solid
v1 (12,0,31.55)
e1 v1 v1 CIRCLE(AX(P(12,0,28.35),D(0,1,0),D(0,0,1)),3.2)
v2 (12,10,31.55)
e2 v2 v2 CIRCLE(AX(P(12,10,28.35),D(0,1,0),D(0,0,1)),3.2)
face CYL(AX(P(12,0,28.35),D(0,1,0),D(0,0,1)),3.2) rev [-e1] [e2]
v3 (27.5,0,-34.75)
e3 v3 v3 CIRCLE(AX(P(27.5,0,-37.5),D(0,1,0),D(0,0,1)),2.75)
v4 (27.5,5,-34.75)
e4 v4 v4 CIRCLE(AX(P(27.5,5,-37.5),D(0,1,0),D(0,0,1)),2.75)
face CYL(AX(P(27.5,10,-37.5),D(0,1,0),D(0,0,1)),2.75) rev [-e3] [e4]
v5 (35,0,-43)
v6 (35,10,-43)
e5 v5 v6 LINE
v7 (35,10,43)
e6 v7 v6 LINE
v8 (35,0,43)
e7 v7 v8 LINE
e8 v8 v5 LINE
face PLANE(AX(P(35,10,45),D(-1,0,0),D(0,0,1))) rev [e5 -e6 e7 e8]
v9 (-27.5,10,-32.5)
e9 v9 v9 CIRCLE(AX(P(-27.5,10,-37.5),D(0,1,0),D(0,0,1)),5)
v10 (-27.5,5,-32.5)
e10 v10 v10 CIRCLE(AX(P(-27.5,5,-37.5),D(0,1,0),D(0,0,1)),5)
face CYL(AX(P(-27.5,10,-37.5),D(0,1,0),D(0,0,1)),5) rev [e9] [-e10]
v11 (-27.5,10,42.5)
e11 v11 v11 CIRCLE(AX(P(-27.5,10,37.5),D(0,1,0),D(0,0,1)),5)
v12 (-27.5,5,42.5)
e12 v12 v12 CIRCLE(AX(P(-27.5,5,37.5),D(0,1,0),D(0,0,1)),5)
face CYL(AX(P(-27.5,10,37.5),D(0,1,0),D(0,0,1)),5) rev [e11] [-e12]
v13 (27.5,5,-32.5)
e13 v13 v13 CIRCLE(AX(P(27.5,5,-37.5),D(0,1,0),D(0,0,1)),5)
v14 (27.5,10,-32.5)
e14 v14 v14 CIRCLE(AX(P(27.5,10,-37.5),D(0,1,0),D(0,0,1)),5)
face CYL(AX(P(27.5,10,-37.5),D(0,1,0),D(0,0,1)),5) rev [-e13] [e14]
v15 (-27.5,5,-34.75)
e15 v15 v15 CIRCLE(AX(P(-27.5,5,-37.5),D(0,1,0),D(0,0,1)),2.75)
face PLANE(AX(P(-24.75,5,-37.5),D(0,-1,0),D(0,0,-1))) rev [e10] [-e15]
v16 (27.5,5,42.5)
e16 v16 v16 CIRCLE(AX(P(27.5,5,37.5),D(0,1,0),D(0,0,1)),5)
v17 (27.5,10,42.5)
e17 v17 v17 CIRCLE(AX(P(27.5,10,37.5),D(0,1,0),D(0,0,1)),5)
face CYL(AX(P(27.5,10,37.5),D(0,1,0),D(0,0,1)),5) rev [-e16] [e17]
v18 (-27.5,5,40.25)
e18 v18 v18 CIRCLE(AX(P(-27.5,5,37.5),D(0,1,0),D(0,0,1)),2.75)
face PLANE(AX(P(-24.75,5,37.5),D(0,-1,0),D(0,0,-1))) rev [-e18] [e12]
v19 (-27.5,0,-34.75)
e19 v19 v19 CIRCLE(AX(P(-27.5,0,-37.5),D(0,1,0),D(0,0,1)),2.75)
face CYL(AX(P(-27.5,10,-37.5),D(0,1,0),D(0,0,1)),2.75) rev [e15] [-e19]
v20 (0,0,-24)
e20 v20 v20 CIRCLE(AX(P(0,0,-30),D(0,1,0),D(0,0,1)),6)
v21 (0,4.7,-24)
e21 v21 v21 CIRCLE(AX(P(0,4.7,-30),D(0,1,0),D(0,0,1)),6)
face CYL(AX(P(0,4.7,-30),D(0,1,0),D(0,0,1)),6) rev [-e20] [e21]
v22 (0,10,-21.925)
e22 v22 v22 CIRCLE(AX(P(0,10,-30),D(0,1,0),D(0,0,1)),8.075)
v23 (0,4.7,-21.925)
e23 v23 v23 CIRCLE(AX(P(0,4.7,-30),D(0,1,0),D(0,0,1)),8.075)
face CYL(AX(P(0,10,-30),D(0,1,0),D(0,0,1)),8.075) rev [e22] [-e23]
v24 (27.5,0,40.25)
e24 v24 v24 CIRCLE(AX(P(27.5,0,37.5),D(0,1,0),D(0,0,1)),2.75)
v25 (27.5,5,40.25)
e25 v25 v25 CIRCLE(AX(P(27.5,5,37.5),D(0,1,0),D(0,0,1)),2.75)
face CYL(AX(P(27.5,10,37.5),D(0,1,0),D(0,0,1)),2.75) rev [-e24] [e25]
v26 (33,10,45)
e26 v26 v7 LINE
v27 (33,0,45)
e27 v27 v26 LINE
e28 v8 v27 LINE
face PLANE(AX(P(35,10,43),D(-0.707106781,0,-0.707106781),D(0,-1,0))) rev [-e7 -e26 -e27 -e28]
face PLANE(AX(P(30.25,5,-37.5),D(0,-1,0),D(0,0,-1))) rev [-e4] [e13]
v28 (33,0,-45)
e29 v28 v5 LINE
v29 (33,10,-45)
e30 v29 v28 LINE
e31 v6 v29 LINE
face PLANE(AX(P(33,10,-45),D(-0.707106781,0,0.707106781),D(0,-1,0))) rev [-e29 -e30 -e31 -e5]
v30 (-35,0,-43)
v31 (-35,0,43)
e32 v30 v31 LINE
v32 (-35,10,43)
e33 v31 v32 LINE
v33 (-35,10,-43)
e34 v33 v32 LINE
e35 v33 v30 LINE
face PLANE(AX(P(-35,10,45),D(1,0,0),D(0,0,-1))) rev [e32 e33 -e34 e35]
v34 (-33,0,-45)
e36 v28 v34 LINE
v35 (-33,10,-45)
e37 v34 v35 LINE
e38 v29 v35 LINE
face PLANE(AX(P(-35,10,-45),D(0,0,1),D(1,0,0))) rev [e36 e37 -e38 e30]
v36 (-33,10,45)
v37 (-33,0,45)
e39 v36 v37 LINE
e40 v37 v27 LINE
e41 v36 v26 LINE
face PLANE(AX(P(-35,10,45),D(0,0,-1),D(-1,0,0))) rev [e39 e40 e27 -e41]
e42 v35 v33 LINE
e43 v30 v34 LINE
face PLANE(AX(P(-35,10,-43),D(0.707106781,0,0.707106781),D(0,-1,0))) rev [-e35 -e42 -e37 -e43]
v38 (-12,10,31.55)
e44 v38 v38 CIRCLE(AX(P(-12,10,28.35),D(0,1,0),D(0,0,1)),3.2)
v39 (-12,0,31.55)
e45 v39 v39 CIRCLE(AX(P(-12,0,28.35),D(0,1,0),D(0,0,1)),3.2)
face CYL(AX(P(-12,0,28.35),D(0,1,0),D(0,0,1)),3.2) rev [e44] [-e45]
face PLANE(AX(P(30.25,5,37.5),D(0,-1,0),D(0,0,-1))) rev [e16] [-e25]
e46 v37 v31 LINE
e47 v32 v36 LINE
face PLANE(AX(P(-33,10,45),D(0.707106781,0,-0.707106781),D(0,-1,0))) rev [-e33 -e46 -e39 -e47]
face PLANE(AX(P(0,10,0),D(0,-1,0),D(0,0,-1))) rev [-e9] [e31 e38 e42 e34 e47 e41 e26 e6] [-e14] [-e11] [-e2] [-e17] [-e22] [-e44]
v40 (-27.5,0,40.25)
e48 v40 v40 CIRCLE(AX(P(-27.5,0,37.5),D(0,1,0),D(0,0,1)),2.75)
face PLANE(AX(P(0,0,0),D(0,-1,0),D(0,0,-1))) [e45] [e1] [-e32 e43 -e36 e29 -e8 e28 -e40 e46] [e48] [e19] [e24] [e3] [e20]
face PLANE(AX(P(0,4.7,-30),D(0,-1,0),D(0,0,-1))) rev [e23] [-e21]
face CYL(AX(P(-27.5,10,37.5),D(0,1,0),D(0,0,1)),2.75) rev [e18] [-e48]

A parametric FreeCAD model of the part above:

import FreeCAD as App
import Part
import Sketcher
from FreeCAD import Vector
Q = App.Units.Quantity


def edges_at(feature, points):
    """Names of the edges that pass closest to the given points."""
    edges = feature.Shape.Edges
    near = lambda p: min(range(len(edges)), key=lambda i: edges[i].distToShape(Part.Vertex(*p))[0])
    return sorted({f"Edge{near(p) + 1}" for p in points})


def add_polygon(sketch, points):
    """Adds a closed chain of lines whose ends are joined by coincident constraints."""
    first, n = sketch.GeometryCount, len(points)
    for a, b in zip(points, points[1:] + points[:1]):
        sketch.addGeometry(Part.LineSegment(App.Vector(*a, 0), App.Vector(*b, 0)), False)
    for i in range(n):
        sketch.addConstraint(Sketcher.Constraint("Coincident", first + i, 2, first + (i + 1) % n, 1))

doc = App.newDocument("Part")
body = doc.addObject("PartDesign::Body", "Body")

# Sketch on XZ plane
sketch1 = doc.addObject("Sketcher::SketchObject", "Sketch")
body.addObject(sketch1)
sketch1.AttachmentSupport = (doc.XZ_Plane, [""])
sketch1.MapMode = "FlatFace"
add_polygon(sketch1, [(-35, -45), (-35, 45), (35, 45), (35, -45)])  # lines 0-3
sketch1.addConstraint(Sketcher.Constraint("Vertical", 0))
sketch1.addConstraint(Sketcher.Constraint("Horizontal", 1))
sketch1.addConstraint(Sketcher.Constraint("Vertical", 2))
sketch1.addConstraint(Sketcher.Constraint("Horizontal", 3))
sketch1.addConstraint(Sketcher.Constraint("Symmetric", 0, 2, 2, 2, -1, 1))
sketch1.addConstraint(Sketcher.Constraint("DistanceX", 1, 1, 1, 2, Q("70 mm")))
sketch1.addConstraint(Sketcher.Constraint("DistanceY", 0, 1, 0, 2, Q("90 mm")))
pad1 = doc.addObject("PartDesign::Pad", "Pad")
body.addObject(pad1)
pad1.Profile = sketch1
pad1.Length = 10
pad1.Reversed = True

# Sketch on XZ plane
sketch2 = doc.addObject("Sketcher::SketchObject", "Sketch001")
body.addObject(sketch2)
sketch2.AttachmentSupport = (doc.XZ_Plane, [""])
sketch2.MapMode = "FlatFace"
sketch2.AttachmentOffset = App.Placement(Vector(0, 0, -10), App.Rotation())
sketch2.addGeometry(Part.Circle(Vector(-27.5, 37.5, 0), Vector(0, 0, 1), 2.8), False)
sketch2.addGeometry(Part.Circle(Vector(-27.5, -37.5, 0), Vector(0, 0, 1), 2.8), False)
sketch2.addGeometry(Part.Circle(Vector(27.5, -37.5, 0), Vector(0, 0, 1), 2.8), False)
sketch2.addGeometry(Part.Circle(Vector(27.5, 37.5, 0), Vector(0, 0, 1), 2.8), False)
sketch2.addConstraint(Sketcher.Constraint("Equal", 0, 1))
sketch2.addConstraint(Sketcher.Constraint("Equal", 1, 2))
sketch2.addConstraint(Sketcher.Constraint("Equal", 2, 3))
sketch2.addConstraint(Sketcher.Constraint("Symmetric", 0, 3, 2, 3, -1, 1))
sketch2.addConstraint(Sketcher.Constraint("Symmetric", 1, 3, 3, 3, -1, 1))
sketch2.addConstraint(Sketcher.Constraint("Symmetric", 1, 3, 2, 3, -2))
sketch2.addConstraint(Sketcher.Constraint("Diameter", 0, Q("5.5 mm")))
sketch2.addConstraint(Sketcher.Constraint("DistanceY", 1, 3, 0, 3, Q("75 mm")))
sketch2.addConstraint(Sketcher.Constraint("DistanceX", 1, 3, 2, 3, Q("55 mm")))
doc.recompute()
hole = doc.addObject("PartDesign::Hole", "Hole")
body.addObject(hole)
hole.Profile = sketch2
hole.ThreadType = "None"
hole.Diameter = 5.5
hole.DepthType = "ThroughAll"
hole.HoleCutType = "Counterbore"
hole.HoleCutDiameter = 10
hole.HoleCutDepth = 5
hole.Reversed = True

# Sketch on XZ plane
sketch3 = doc.addObject("Sketcher::SketchObject", "Sketch002")
body.addObject(sketch3)
sketch3.AttachmentSupport = (doc.XZ_Plane, [""])
sketch3.MapMode = "FlatFace"
sketch3.AttachmentOffset = App.Placement(Vector(0, 0, -10), App.Rotation())
sketch3.addGeometry(Part.Circle(Vector(0, -30, 0), Vector(0, 0, 1), 8), False)
sketch3.addConstraint(Sketcher.Constraint("PointOnObject", 0, 3, -2))
sketch3.addConstraint(Sketcher.Constraint("Diameter", 0, Q("16.15 mm")))
sketch3.addConstraint(Sketcher.Constraint("DistanceY", 0, 3, -1, 1, Q("30 mm")))
doc.recompute()
hole2 = doc.addObject("PartDesign::Hole", "Hole001")
body.addObject(hole2)
hole2.Profile = sketch3
hole2.ThreadType = "None"
hole2.Diameter = 16.15
hole2.DepthType = "Dimension"
hole2.Depth = 5.3
hole2.DrillPoint = "Flat"
hole2.Reversed = True

# Sketch on XZ plane
sketch4 = doc.addObject("Sketcher::SketchObject", "Sketch003")
body.addObject(sketch4)
sketch4.AttachmentSupport = (doc.XZ_Plane, [""])
sketch4.MapMode = "FlatFace"
sketch4.AttachmentOffset = App.Placement(Vector(0, 0, -4.7), App.Rotation())
sketch4.addGeometry(Part.Circle(Vector(0, -30, 0), Vector(0, 0, 1), 6), False)
sketch4.addConstraint(Sketcher.Constraint("PointOnObject", 0, 3, -2))
sketch4.addConstraint(Sketcher.Constraint("Diameter", 0, Q("12 mm")))
sketch4.addConstraint(Sketcher.Constraint("DistanceY", 0, 3, -1, 1, Q("30 mm")))
doc.recompute()
hole3 = doc.addObject("PartDesign::Hole", "Hole002")
body.addObject(hole3)
hole3.Profile = sketch4
hole3.ThreadType = "None"
hole3.Diameter = 12
hole3.DepthType = "ThroughAll"
hole3.Reversed = True

# Sketch on XZ plane
sketch5 = doc.addObject("Sketcher::SketchObject", "Sketch004")
body.addObject(sketch5)
sketch5.AttachmentSupport = (doc.XZ_Plane, [""])
sketch5.MapMode = "FlatFace"
sketch5.AttachmentOffset = App.Placement(Vector(0, 0, -10), App.Rotation())
sketch5.addGeometry(Part.Circle(Vector(12, 28.4, 0), Vector(0, 0, 1), 3.2), False)
sketch5.addGeometry(Part.Circle(Vector(-12, 28.4, 0), Vector(0, 0, 1), 3.2), False)
sketch5.addConstraint(Sketcher.Constraint("Equal", 0, 1))
sketch5.addConstraint(Sketcher.Constraint("Symmetric", 0, 3, 1, 3, -2))
sketch5.addConstraint(Sketcher.Constraint("Diameter", 0, Q("6.4 mm")))
sketch5.addConstraint(Sketcher.Constraint("DistanceX", -1, 1, 0, 3, Q("12 mm")))
sketch5.addConstraint(Sketcher.Constraint("DistanceY", -1, 1, 0, 3, Q("28.35 mm")))
pocket1 = doc.addObject("PartDesign::Pocket", "Pocket")
body.addObject(pocket1)
pocket1.Profile = sketch5
pocket1.Type = "ThroughAll"
pocket1.Reversed = True
doc.recompute()

chamfer = doc.addObject("PartDesign::Chamfer", "Chamfer")
body.addObject(chamfer)
chamfer.Base = (pocket1, edges_at(pocket1, [
    (35, 5, 45),
    (-35, 5, 45),
    (-35, 5, -45),
    (35, 5, -45),
]))
chamfer.Size = 2

doc.recompute()
